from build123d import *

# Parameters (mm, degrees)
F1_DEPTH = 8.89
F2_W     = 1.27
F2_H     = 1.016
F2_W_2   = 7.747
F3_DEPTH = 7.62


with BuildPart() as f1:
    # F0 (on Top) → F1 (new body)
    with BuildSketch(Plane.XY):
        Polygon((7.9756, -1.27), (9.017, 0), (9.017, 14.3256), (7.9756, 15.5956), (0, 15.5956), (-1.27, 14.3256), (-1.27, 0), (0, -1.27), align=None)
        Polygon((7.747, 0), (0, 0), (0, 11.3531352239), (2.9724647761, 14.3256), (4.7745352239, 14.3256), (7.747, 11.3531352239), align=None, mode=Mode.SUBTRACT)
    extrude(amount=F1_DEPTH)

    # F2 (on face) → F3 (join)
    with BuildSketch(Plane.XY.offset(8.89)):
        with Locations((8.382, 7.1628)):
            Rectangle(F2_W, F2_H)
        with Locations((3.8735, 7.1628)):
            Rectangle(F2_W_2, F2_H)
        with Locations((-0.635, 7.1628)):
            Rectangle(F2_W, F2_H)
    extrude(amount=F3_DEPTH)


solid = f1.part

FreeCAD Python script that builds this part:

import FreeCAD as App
import Part
import Sketcher
Q = App.Units.Quantity


def add_polygon(sketch, points):
    """Adds a closed chain of lines whose ends are joined by coincident constraints."""
    first, n = sketch.GeometryCount, len(points)
    for a, b in zip(points, points[1:] + points[:1]):
        sketch.addGeometry(Part.LineSegment(App.Vector(*a, 0), App.Vector(*b, 0)), False)
    for i in range(n):
        sketch.addConstraint(Sketcher.Constraint("Coincident", first + i, 2, first + (i + 1) % n, 1))

doc = App.newDocument("Part")
params = doc.addObject("Spreadsheet::Sheet", "Params")
for row, (alias, value) in enumerate([
    ("sketch1_width", "0.314 in"),
    ("sketch1_width2", "0.305 in"),
    ("sketch1_height", "0.564 in"),
    ("pad1_length", "0.35 in"),
    ("sketch2_height", "0.04 in"),
    ("sketch2_width", "0.405 in"),
    ("pad2_length", "0.3 in"),
], start=1):
    params.set(f"A{row}", alias)
    params.set(f"B{row}", "=" + value)
    params.setAlias(f"B{row}", alias)

body = doc.addObject("PartDesign::Body", "Body")

# Sketch on XY plane
sketch1 = doc.addObject("Sketcher::SketchObject", "Sketch")
body.addObject(sketch1)
sketch1.AttachmentSupport = (doc.XY_Plane, [""])
sketch1.MapMode = "FlatFace"
add_polygon(sketch1, [(8, -1.3), (9, 0), (9, 14.3), (8, 15.6), (0, 15.6), (-1.3, 14.3), (-1.3, 0), (0, -1.3)])  # lines 0-7
add_polygon(sketch1, [(7.7, 11.4), (7.7, 0), (0, 0), (0, 11.4), (3, 14.3), (4.8, 14.3)])  # lines 8-13
sketch1.addConstraint(Sketcher.Constraint("Vertical", 1))
sketch1.addConstraint(Sketcher.Constraint("Horizontal", 3))
sketch1.addConstraint(Sketcher.Constraint("Vertical", 5))
sketch1.addConstraint(Sketcher.Constraint("Horizontal", 7))
sketch1.addConstraint(Sketcher.Constraint("Vertical", 8))
sketch1.addConstraint(Sketcher.Constraint("Horizontal", 9))
sketch1.addConstraint(Sketcher.Constraint("Vertical", 10))
sketch1.addConstraint(Sketcher.Constraint("Horizontal", 12))
sketch1.addConstraint(Sketcher.Constraint("Coincident", 9, 2, -1, 1))
sketch1.addConstraint(Sketcher.Constraint("PointOnObject", 0, 2, -1))
sketch1.addConstraint(Sketcher.Constraint("PointOnObject", 3, 2, -2))
sketch1.addConstraint(Sketcher.Constraint("PointOnObject", 5, 2, -1))
sketch1.addConstraint(Sketcher.Constraint("PointOnObject", 6, 2, -2))
sketch1.addConstraint(Sketcher.Constraint("Perpendicular", 4, 6))
sketch1.addConstraint(Sketcher.Constraint("Perpendicular", 6, 11))
sketch1.addConstraint(Sketcher.Constraint("Perpendicular", 11, 13))
sketch1.addConstraint(Sketcher.Constraint("Horizontal", 1, 2, 4, 2))
sketch1.addConstraint(Sketcher.Constraint("Horizontal", 4, 2, 11, 2))
sketch1.addConstraint(Sketcher.Constraint("Horizontal", 10, 2, 13, 2))
sketch1.addConstraint(Sketcher.Constraint("Vertical", 2, 2, 7, 2))
sketch1.addConstraint(Sketcher.Constraint("Equal", 0, 2))
sketch1.addConstraint(Sketcher.Constraint("DistanceX", 3, 2, 3, 1, Q("0.314 in")))
sketch1.addConstraint(Sketcher.Constraint("DistanceX", 9, 2, 9, 1, Q("0.305 in")))
sketch1.addConstraint(Sketcher.Constraint("DistanceY", 1, 1, 1, 2, Q("0.564 in")))
sketch1.addConstraint(Sketcher.Constraint("DistanceX", 4, 2, -1, 1, Q("0.05 in")))
sketch1.addConstraint(Sketcher.Constraint("DistanceX", 8, 2, 0, 2, Q("0.05 in")))
sketch1.addConstraint(Sketcher.Constraint("Distance", 11, Q("0.1655 in")))
sketch1.setExpression("Constraints[35]", "Params.sketch1_width")
sketch1.setExpression("Constraints[36]", "Params.sketch1_width2")
sketch1.setExpression("Constraints[37]", "Params.sketch1_height")
pad1 = doc.addObject("PartDesign::Pad", "Pad")
body.addObject(pad1)
pad1.Profile = sketch1
pad1.setExpression("Length", "Params.pad1_length")

# Sketch on XY plane
sketch2 = doc.addObject("Sketcher::SketchObject", "Sketch001")
body.addObject(sketch2)
sketch2.AttachmentSupport = (doc.XY_Plane, [""])
sketch2.MapMode = "FlatFace"
sketch2.AttachmentOffset = App.Placement(App.Vector(0, 0, 0.35 * 25.4), App.Rotation())
add_polygon(sketch2, [(9, 6.7), (9, 7.7), (-1.3, 7.7), (-1.3, 6.7)])  # lines 0-3
sketch2.addConstraint(Sketcher.Constraint("Vertical", 0))
sketch2.addConstraint(Sketcher.Constraint("Horizontal", 1))
sketch2.addConstraint(Sketcher.Constraint("Vertical", 2))
sketch2.addConstraint(Sketcher.Constraint("Horizontal", 3))
sketch2.addConstraint(Sketcher.Constraint("DistanceY", 0, 1, 0, 2, Q("0.04 in")))
sketch2.addConstraint(Sketcher.Constraint("DistanceX", 1, 2, 1, 1, Q("0.405 in")))
sketch2.addConstraint(Sketcher.Constraint("DistanceX", 1, 2, -1, 1, Q("0.05 in")))
sketch2.addConstraint(Sketcher.Constraint("DistanceY", -1, 1, 0, 2, Q("0.302 in")))
sketch2.setExpression("Constraints[8]", "Params.sketch2_height")
sketch2.setExpression("Constraints[9]", "Params.sketch2_width")
pad2 = doc.addObject("PartDesign::Pad", "Pad001")
body.addObject(pad2)
pad2.Profile = sketch2
pad2.setExpression("Length", "Params.pad2_length")

doc.recompute()
